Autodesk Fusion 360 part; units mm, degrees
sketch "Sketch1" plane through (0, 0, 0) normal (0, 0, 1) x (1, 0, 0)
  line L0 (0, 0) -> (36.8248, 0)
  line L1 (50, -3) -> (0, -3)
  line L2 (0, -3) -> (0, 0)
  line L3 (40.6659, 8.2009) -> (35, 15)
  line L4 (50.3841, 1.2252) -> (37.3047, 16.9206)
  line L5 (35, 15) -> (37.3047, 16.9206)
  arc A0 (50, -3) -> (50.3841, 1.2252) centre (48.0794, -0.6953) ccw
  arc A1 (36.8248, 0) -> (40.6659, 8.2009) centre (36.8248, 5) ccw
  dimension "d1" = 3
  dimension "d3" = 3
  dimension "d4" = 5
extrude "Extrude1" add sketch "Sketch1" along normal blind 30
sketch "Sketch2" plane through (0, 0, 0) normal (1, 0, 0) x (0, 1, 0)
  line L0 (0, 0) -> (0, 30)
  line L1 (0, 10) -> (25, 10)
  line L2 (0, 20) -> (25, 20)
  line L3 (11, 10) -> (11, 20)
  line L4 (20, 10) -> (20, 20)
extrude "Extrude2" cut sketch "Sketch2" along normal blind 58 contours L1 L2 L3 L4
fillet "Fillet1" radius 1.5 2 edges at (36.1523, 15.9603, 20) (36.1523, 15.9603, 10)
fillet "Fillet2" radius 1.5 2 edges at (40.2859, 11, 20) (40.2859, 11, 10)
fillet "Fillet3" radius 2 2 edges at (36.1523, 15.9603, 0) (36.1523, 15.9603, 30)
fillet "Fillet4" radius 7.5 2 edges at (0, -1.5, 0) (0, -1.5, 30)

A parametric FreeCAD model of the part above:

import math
import FreeCAD as App
import Part
import Sketcher

V = App.Vector
Q = App.Units.Quantity


def edges_at(feature, points):
    """Names of the edges that pass closest to the given points."""
    edges = feature.Shape.Edges
    near = lambda p: min(range(len(edges)), key=lambda i: edges[i].distToShape(Part.Vertex(*p))[0])
    return sorted({f"Edge{near(p) + 1}" for p in points})


def add_polygon(sketch, points):
    """Adds a closed chain of lines whose ends are joined by coincident constraints."""
    first, n = sketch.GeometryCount, len(points)
    for a, b in zip(points, points[1:] + points[:1]):
        sketch.addGeometry(Part.LineSegment(App.Vector(*a, 0), App.Vector(*b, 0)), False)
    for i in range(n):
        sketch.addConstraint(Sketcher.Constraint("Coincident", first + i, 2, first + (i + 1) % n, 1))

doc = App.newDocument("Part")
params = doc.addObject("Spreadsheet::Sheet", "Params")
for row, (alias, value) in enumerate([
    ("sketch1_radius", "3 mm"),
    ("sketch1_radius2", "5 mm"),
    ("sketch1_height", "3 mm"),
    ("sketch1_length", "3 mm"),
    ("sketch1_width", "50 mm"),
    ("pad1_length", "30 mm"),
    ("sketch2_width", "9 mm"),
    ("sketch2_height", "10 mm"),
    ("pocket1_length", "58 mm"),
    ("fillet_radius", "1.5 mm"),
    ("fillet2_radius", "1.5 mm"),
    ("fillet3_radius", "2 mm"),
    ("fillet4_radius", "7.5 mm"),
], start=1):
    params.set(f"A{row}", alias)
    params.set(f"B{row}", "=" + value)
    params.setAlias(f"B{row}", alias)

body = doc.addObject("PartDesign::Body", "Body")

# Sketch on XY plane
sketch1 = doc.addObject("Sketcher::SketchObject", "Sketch")
body.addObject(sketch1)
sketch1.AttachmentSupport = (doc.XY_Plane, [""])
sketch1.MapMode = "FlatFace"
sketch1.addGeometry([
    Part.LineSegment(V(36.8248, 0, 0), V(0, 0, 0)),  # 0
    Part.LineSegment(V(0, 0, 0), V(0, -3, 0)),  # 1
    Part.LineSegment(V(0, -3, 0), V(50, -3, 0)),  # 2
    Part.ArcOfCircle(Part.Circle(V(48.0794, -0.6953, 0), V(0, 0, 1), 3.000058), math.radians(-50.194184), math.radians(39.804348)),  # 3
    Part.LineSegment(V(50.3841, 1.2252, 0), V(37.3047, 16.9206, 0)),  # 4
    Part.LineSegment(V(37.3047, 16.9206, 0), V(35, 15, 0)),  # 5
    Part.LineSegment(V(35, 15, 0), V(40.6659, 8.2009, 0)),  # 6
    Part.ArcOfCircle(Part.Circle(V(36.8248, 5, 0), V(0, 0, 1), 5), math.radians(-90), math.radians(39.805424)),  # 7
], False)
sketch1.addConstraint([
    Sketcher.Constraint("Coincident", 0, 2, 1, 1),
    Sketcher.Constraint("Coincident", 1, 2, 2, 1),
    Sketcher.Constraint("Coincident", 2, 2, 3, 1),
    Sketcher.Constraint("Tangent", 3, 2, 4, 1),
    Sketcher.Constraint("Coincident", 4, 2, 5, 1),
    Sketcher.Constraint("Coincident", 5, 2, 6, 1),
    Sketcher.Constraint("Tangent", 6, 2, 7, 2),
    Sketcher.Constraint("Tangent", 7, 1, 0, 1),
    Sketcher.Constraint("Horizontal", 0),
    Sketcher.Constraint("Vertical", 1),
    Sketcher.Constraint("Horizontal", 2),
    Sketcher.Constraint("Coincident", 0, 2, -1, 1),
    Sketcher.Constraint("Perpendicular", 4, 5),
    Sketcher.Constraint("Perpendicular", 5, 6),
    Sketcher.Constraint("Radius", 3, Q("3 mm")),
    Sketcher.Constraint("Radius", 7, Q("5 mm")),
    Sketcher.Constraint("DistanceY", 1, 2, 1, 1, Q("3 mm")),
    Sketcher.Constraint("Distance", 5, Q("3 mm")),
    Sketcher.Constraint("DistanceX", 2, 1, 2, 2, Q("50 mm")),
    Sketcher.Constraint("DistanceX", -1, 1, 5, 2, Q("35 mm")),
    Sketcher.Constraint("DistanceY", -1, 1, 5, 2, Q("15 mm")),
    Sketcher.Constraint("DistanceX", 7, 3, 4, 2, Q("0.48 mm")),
])
sketch1.setExpression("Constraints[14]", "Params.sketch1_radius")
sketch1.setExpression("Constraints[15]", "Params.sketch1_radius2")
sketch1.setExpression("Constraints[16]", "Params.sketch1_height")
sketch1.setExpression("Constraints[17]", "Params.sketch1_length")
sketch1.setExpression("Constraints[18]", "Params.sketch1_width")
pad1 = doc.addObject("PartDesign::Pad", "Pad")
body.addObject(pad1)
pad1.Profile = sketch1
pad1.setExpression("Length", "Params.pad1_length")

# Sketch on YZ plane
sketch2 = doc.addObject("Sketcher::SketchObject", "Sketch001")
body.addObject(sketch2)
sketch2.AttachmentSupport = (doc.YZ_Plane, [""])
sketch2.MapMode = "FlatFace"
add_polygon(sketch2, [(11, 20), (11, 10), (20, 10), (20, 20)])  # lines 0-3
sketch2.addConstraint([
    Sketcher.Constraint("Vertical", 0),
    Sketcher.Constraint("Horizontal", 1),
    Sketcher.Constraint("Vertical", 2),
    Sketcher.Constraint("Horizontal", 3),
    Sketcher.Constraint("DistanceX", 1, 1, 1, 2, Q("9 mm")),
    Sketcher.Constraint("DistanceY", 0, 2, 0, 1, Q("10 mm")),
    Sketcher.Constraint("DistanceX", -1, 1, 0, 2, Q("11 mm")),
    Sketcher.Constraint("DistanceY", -1, 1, 0, 2, Q("10 mm")),
])
sketch2.setExpression("Constraints[8]", "Params.sketch2_width")
sketch2.setExpression("Constraints[9]", "Params.sketch2_height")
pocket1 = doc.addObject("PartDesign::Pocket", "Pocket")
body.addObject(pocket1)
pocket1.Profile = sketch2
pocket1.setExpression("Length", "Params.pocket1_length")
pocket1.Reversed = True
doc.recompute()

fillet = doc.addObject("PartDesign::Fillet", "Fillet")
body.addObject(fillet)
fillet.Base = (pocket1, edges_at(pocket1, [(36.152, 15.96, 20), (36.152, 15.96, 10)]))
fillet.setExpression("Radius", "Params.fillet_radius")
doc.recompute()

fillet2 = doc.addObject("PartDesign::Fillet", "Fillet001")
body.addObject(fillet2)
fillet2.Base = (fillet, edges_at(fillet, [(40.286, 11, 20), (40.286, 11, 10)]))
fillet2.setExpression("Radius", "Params.fillet2_radius")
doc.recompute()

fillet3 = doc.addObject("PartDesign::Fillet", "Fillet002")
body.addObject(fillet3)
fillet3.Base = (fillet2, edges_at(fillet2, [(36.152, 15.96, 0), (36.152, 15.96, 30)]))
fillet3.setExpression("Radius", "Params.fillet3_radius")
doc.recompute()

fillet4 = doc.addObject("PartDesign::Fillet", "Fillet003")
body.addObject(fillet4)
fillet4.Base = (fillet3, edges_at(fillet3, [(0, -1.5, 0), (0, -1.5, 30)]))
fillet4.setExpression("Radius", "Params.fillet4_radius")

doc.recompute()
